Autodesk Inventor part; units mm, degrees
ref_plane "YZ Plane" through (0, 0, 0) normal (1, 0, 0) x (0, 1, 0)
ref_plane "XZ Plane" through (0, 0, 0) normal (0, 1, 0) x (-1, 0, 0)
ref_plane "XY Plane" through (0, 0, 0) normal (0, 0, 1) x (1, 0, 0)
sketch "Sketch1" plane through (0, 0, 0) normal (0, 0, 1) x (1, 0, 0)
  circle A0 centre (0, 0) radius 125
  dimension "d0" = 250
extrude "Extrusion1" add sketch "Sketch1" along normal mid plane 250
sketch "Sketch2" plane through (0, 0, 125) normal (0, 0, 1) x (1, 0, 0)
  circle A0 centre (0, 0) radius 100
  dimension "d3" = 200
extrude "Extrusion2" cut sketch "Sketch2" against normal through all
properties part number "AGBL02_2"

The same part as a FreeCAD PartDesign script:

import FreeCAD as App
import Part
import Sketcher

V = App.Vector

doc = App.newDocument("Part")
params = doc.addObject("Spreadsheet::Sheet", "Params")
for row, (alias, value) in enumerate([
    ("sketch1_diameter", "250 mm"),
    ("pad1_length", "250 mm"),
    ("sketch2_diameter", "200 mm"),
], start=1):
    params.set(f"A{row}", alias)
    params.set(f"B{row}", "=" + value)
    params.setAlias(f"B{row}", alias)

body = doc.addObject("PartDesign::Body", "Body")

sketch1 = doc.addObject("Sketcher::SketchObject", "Sketch")
body.addObject(sketch1)
sketch1.AttachmentSupport = (doc.XY_Plane, [""])
sketch1.MapMode = "FlatFace"
sketch1.addGeometry(Part.Circle(V(0, 0, 0), V(0, 0, 1), 125), False)
sketch1.addConstraint(Sketcher.Constraint("Coincident", 0, 3, -1, 1))
sketch1.addConstraint(Sketcher.Constraint("Diameter", 0, 250.0))
sketch1.setExpression("Constraints[1]", "Params.sketch1_diameter")
pad1 = doc.addObject("PartDesign::Pad", "Pad")
body.addObject(pad1)
pad1.Profile = sketch1
pad1.setExpression("Length", "Params.pad1_length")
pad1.Midplane = True

sketch2 = doc.addObject("Sketcher::SketchObject", "Sketch001")
body.addObject(sketch2)
sketch2.AttachmentSupport = (doc.XY_Plane, [""])
sketch2.MapMode = "FlatFace"
sketch2.AttachmentOffset = App.Placement(V(0, 0, 125), App.Rotation())
sketch2.addGeometry(Part.Circle(V(0, 0, 0), V(0, 0, 1), 100), False)
sketch2.addConstraint(Sketcher.Constraint("Coincident", 0, 3, -1, 1))
sketch2.addConstraint(Sketcher.Constraint("Diameter", 0, 200.0))
sketch2.setExpression("Constraints[1]", "Params.sketch2_diameter")
pocket1 = doc.addObject("PartDesign::Pocket", "Pocket")
body.addObject(pocket1)
pocket1.Profile = sketch2
pocket1.Type = "ThroughAll"

doc.recompute()
